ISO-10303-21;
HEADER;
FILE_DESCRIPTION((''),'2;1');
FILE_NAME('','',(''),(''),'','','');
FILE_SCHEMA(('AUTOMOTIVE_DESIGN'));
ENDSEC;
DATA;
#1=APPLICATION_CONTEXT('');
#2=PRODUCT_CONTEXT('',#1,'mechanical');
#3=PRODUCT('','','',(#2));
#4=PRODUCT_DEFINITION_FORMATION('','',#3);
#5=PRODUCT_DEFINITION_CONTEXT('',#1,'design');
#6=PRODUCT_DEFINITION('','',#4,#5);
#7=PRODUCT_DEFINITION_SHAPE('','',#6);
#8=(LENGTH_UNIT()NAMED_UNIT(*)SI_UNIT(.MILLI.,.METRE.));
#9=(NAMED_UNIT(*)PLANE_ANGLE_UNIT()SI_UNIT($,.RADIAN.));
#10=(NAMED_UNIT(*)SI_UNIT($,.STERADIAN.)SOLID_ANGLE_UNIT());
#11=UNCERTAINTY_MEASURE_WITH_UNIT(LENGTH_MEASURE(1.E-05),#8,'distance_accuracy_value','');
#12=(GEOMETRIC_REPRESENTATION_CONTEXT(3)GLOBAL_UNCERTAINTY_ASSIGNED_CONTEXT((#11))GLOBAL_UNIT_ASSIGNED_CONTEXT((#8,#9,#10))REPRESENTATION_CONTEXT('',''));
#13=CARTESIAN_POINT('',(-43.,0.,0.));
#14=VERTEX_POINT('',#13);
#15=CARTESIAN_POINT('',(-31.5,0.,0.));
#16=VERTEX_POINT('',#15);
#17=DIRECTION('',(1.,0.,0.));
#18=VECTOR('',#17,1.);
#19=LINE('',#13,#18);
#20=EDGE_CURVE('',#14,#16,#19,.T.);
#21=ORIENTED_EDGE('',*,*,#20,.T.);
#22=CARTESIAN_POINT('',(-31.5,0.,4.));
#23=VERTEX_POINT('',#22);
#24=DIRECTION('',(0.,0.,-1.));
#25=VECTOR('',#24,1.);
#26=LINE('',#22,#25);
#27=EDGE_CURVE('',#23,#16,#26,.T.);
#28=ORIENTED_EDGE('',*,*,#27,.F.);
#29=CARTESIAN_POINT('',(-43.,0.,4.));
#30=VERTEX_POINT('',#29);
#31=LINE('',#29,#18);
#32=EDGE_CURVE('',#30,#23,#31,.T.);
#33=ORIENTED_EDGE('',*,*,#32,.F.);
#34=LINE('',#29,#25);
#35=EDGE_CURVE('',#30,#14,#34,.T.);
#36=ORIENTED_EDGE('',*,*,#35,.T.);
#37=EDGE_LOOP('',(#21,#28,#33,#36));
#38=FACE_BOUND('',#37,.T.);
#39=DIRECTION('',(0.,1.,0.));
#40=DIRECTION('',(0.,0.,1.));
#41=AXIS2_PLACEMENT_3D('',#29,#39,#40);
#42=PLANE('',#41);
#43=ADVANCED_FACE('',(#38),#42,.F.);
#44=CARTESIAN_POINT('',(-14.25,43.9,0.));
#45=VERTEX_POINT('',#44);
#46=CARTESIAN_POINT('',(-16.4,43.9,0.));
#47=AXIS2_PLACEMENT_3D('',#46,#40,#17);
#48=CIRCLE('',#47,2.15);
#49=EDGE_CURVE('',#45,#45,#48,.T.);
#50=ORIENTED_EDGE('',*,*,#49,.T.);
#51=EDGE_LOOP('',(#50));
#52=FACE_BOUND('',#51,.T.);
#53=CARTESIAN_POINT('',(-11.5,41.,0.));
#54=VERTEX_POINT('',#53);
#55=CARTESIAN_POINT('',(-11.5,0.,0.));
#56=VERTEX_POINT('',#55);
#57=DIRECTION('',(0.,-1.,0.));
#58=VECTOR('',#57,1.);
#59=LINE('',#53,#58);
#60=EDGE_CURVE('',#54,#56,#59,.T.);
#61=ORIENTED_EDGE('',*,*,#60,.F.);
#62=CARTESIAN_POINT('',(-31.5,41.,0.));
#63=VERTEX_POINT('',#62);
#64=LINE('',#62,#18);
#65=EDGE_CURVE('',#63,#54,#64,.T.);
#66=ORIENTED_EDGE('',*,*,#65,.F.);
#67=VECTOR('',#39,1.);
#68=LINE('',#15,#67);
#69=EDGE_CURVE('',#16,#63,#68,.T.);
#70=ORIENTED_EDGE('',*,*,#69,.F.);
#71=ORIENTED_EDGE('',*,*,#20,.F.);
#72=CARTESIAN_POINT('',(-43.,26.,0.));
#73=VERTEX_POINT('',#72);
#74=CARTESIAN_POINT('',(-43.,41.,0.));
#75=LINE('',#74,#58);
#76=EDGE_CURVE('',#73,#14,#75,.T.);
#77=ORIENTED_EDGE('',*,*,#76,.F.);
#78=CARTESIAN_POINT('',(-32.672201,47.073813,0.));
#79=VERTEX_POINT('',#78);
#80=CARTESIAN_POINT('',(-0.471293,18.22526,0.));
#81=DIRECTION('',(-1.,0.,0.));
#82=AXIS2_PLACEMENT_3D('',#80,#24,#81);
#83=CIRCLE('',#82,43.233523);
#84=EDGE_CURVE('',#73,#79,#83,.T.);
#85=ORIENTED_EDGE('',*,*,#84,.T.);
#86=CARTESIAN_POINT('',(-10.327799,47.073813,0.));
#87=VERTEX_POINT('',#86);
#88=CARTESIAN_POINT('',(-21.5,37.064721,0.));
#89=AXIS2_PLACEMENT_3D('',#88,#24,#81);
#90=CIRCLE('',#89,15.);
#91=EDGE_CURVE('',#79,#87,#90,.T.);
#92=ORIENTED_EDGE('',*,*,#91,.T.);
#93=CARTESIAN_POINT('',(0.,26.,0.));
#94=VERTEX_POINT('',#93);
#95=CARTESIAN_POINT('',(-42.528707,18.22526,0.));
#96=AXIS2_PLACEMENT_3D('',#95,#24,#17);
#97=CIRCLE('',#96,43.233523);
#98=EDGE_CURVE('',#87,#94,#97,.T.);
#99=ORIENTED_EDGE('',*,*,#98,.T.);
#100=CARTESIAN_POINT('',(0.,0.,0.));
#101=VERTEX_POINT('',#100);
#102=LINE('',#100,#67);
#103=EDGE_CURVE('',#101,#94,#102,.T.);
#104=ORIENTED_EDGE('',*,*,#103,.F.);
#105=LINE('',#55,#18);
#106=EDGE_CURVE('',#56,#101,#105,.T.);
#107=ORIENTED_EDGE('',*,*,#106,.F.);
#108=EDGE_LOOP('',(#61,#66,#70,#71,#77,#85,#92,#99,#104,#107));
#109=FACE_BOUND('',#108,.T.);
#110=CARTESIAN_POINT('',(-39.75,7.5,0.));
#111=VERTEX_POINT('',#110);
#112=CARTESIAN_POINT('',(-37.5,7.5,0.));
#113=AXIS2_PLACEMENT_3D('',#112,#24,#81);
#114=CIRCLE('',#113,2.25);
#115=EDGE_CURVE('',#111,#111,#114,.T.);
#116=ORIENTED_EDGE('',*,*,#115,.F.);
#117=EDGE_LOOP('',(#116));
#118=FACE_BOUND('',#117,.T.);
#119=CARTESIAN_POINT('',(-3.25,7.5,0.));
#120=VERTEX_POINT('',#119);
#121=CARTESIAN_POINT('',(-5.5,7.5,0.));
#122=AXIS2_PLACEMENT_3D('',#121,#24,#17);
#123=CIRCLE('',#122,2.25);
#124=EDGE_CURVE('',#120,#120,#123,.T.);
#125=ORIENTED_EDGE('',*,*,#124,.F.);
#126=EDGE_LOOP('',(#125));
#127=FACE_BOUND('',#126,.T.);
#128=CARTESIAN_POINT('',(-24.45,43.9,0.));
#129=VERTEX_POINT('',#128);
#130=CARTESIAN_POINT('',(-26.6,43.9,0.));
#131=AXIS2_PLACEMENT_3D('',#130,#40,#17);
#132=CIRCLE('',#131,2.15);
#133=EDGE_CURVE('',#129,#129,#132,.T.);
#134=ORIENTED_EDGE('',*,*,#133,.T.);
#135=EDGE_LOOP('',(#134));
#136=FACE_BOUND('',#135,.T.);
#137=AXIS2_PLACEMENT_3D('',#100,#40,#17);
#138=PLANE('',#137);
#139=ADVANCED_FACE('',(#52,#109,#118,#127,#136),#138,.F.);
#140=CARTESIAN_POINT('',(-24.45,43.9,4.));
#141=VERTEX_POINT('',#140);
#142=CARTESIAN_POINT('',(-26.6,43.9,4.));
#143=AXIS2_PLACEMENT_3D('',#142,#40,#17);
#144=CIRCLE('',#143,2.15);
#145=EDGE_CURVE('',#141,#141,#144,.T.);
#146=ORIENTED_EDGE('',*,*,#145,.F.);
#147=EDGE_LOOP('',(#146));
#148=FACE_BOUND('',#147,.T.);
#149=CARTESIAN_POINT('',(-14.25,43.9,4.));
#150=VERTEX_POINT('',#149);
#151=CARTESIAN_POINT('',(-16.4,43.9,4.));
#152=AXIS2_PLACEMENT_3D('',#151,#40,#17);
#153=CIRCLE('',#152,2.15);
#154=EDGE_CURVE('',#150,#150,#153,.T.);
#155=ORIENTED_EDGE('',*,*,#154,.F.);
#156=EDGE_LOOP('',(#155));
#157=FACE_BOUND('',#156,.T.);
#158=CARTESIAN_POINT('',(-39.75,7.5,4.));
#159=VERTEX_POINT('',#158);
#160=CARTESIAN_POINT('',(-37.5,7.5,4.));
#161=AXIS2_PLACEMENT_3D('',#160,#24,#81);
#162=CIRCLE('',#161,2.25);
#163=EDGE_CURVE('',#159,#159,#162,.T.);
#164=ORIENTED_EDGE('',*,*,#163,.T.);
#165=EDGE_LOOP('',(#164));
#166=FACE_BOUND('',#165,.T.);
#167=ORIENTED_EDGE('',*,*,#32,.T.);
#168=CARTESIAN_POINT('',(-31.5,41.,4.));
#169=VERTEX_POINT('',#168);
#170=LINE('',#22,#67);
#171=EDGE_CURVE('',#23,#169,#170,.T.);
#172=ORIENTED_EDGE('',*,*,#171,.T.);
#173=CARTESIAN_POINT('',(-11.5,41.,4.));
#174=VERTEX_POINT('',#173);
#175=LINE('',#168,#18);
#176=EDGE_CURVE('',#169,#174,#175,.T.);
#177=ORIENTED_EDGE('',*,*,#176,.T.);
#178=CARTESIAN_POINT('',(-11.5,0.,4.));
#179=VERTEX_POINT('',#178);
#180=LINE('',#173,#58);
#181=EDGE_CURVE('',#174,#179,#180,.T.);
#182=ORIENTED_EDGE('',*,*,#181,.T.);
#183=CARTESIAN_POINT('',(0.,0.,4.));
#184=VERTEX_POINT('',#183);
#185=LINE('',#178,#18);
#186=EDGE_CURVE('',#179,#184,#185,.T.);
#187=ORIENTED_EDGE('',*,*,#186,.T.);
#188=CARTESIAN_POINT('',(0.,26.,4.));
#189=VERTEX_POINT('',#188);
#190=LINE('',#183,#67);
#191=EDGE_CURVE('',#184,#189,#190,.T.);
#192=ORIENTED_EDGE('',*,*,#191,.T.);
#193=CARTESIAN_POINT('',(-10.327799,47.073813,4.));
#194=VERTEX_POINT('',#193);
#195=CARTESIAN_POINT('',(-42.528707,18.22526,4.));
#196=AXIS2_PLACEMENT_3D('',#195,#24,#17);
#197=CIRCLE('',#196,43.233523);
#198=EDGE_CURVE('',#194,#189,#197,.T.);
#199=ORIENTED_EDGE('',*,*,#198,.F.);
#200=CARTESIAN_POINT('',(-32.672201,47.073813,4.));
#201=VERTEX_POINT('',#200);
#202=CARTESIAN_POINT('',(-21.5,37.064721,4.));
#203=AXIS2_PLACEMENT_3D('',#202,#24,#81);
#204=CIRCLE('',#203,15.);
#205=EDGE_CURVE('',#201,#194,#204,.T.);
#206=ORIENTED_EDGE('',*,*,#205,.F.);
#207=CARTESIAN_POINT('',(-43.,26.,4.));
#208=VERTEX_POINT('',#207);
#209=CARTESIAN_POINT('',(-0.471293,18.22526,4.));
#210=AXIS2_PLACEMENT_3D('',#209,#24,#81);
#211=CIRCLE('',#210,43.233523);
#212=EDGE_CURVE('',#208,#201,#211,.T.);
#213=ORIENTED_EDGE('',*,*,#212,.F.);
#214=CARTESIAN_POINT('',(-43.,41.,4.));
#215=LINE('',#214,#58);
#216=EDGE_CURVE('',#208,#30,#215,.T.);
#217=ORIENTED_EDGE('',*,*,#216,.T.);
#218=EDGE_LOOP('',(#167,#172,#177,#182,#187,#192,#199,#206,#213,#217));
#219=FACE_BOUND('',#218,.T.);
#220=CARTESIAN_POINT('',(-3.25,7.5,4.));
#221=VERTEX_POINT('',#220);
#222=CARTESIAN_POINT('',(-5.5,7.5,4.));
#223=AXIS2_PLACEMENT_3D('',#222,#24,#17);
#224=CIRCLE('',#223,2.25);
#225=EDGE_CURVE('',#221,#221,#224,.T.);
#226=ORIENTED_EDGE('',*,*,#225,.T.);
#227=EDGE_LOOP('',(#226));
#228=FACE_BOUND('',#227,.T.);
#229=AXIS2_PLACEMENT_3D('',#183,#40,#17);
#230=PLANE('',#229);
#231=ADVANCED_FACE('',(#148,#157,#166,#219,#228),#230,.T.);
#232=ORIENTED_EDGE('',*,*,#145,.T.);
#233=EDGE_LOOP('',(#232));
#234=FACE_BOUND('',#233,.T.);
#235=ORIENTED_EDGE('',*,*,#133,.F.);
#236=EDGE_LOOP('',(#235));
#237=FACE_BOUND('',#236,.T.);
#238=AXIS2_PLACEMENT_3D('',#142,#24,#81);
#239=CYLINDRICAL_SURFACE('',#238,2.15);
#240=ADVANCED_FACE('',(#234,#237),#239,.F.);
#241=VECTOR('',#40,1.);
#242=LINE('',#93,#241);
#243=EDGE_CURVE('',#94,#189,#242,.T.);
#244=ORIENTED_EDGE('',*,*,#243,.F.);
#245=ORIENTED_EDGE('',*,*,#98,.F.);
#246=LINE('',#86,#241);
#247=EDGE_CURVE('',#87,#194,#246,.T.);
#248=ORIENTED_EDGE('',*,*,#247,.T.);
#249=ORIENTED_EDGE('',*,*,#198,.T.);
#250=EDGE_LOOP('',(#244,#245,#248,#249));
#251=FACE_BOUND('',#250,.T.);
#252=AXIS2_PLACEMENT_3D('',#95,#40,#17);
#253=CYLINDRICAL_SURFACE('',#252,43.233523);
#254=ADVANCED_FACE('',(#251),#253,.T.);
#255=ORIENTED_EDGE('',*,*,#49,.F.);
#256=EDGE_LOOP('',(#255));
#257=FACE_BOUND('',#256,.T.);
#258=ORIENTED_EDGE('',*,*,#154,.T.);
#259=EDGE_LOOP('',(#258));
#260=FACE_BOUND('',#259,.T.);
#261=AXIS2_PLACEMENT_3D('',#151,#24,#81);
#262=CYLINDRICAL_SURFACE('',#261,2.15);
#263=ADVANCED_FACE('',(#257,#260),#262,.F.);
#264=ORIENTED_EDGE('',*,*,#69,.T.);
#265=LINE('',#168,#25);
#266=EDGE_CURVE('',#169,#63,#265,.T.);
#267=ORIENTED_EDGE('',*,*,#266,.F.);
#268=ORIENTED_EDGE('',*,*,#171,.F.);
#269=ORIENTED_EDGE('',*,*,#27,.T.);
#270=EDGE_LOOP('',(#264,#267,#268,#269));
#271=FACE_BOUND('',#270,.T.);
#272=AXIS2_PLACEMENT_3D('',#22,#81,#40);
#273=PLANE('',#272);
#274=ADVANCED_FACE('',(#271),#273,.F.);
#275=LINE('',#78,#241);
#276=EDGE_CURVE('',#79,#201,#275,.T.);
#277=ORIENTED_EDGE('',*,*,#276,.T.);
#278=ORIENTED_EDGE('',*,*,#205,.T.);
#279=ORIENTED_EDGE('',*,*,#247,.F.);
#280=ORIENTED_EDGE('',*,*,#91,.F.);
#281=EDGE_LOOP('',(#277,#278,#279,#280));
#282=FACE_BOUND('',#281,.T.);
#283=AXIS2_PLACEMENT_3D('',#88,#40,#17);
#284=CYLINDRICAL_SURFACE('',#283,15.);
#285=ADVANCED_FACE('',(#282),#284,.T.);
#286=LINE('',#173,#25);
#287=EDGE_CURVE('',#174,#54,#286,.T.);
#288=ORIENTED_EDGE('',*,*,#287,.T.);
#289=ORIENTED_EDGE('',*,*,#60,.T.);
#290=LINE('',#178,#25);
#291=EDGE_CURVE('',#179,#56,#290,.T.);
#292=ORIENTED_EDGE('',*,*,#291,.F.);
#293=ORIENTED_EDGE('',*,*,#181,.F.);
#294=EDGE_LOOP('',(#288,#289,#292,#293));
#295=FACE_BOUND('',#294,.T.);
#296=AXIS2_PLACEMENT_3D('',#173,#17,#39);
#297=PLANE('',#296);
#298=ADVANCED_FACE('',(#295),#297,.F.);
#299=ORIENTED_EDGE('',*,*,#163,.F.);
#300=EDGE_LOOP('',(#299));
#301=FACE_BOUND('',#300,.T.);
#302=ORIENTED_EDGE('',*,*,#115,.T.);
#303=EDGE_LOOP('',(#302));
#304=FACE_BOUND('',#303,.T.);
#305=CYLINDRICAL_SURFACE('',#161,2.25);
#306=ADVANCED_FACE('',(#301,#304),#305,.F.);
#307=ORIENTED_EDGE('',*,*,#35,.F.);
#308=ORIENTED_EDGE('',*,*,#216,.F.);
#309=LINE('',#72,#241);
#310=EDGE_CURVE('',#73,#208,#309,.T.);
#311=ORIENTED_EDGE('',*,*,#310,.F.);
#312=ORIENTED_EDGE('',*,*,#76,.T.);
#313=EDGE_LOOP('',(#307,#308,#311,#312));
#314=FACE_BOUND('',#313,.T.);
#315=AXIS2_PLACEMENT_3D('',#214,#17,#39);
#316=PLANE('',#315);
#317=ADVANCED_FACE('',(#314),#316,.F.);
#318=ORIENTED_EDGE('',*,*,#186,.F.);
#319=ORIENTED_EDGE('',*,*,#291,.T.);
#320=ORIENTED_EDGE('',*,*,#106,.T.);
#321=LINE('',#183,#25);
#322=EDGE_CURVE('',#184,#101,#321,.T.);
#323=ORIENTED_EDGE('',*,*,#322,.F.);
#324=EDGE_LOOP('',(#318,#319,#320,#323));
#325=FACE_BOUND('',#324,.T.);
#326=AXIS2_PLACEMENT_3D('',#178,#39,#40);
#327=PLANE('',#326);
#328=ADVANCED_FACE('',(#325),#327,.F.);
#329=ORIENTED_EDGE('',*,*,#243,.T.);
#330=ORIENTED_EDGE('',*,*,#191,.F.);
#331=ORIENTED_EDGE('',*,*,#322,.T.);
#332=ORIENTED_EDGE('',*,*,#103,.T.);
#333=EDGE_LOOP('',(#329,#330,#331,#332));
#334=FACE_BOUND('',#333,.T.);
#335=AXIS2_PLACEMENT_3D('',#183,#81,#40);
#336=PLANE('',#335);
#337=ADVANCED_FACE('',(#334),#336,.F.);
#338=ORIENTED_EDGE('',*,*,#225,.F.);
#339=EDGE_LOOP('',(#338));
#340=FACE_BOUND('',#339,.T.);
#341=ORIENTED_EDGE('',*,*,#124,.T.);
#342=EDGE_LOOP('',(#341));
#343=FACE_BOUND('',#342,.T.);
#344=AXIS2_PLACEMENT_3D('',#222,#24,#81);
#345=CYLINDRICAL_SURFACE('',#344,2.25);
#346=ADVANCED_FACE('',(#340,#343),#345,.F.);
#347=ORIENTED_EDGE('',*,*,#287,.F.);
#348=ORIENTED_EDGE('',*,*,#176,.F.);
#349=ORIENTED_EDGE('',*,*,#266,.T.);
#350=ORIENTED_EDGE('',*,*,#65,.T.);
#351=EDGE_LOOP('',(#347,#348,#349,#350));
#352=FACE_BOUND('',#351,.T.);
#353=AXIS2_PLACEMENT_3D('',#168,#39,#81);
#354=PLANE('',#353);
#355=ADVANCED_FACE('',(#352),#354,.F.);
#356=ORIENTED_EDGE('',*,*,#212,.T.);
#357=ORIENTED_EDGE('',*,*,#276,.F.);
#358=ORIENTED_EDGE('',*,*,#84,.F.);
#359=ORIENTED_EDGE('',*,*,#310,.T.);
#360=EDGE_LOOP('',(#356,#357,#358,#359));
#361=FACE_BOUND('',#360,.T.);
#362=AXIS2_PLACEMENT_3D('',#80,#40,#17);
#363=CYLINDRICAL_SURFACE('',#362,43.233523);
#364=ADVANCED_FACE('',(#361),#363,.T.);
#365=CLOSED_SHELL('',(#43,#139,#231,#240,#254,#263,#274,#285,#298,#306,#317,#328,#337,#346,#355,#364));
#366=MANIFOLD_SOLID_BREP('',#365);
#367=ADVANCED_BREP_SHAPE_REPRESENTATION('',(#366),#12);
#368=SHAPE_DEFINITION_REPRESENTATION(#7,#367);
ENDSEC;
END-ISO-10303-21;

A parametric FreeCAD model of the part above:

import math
import FreeCAD as App
import Part
import Sketcher
Q = App.Units.Quantity


def add_polygon(sketch, points):
    """Adds a closed chain of lines whose ends are joined by coincident constraints."""
    first, n = sketch.GeometryCount, len(points)
    for a, b in zip(points, points[1:] + points[:1]):
        sketch.addGeometry(Part.LineSegment(App.Vector(*a, 0), App.Vector(*b, 0)), False)
    for i in range(n):
        sketch.addConstraint(Sketcher.Constraint("Coincident", first + i, 2, first + (i + 1) % n, 1))

doc = App.newDocument("Part")
body = doc.addObject("PartDesign::Body", "Body")

# Sketch on XY plane
sketch1 = body.newObject("Sketcher::SketchObject", "Sketch")
sketch1.AttachmentSupport = (doc.getObject("XY_Plane"), [""])
sketch1.MapMode = "FlatFace"
add_polygon(sketch1, [(0, 0), (0, 41), (-15, 56), (-28, 56), (-43, 41), (-43, 0), (-31.5, 0), (-31.5, 41), (-11.5, 41), (-11.5, 0)])  # lines 0-9
sketch1.addGeometry(Part.Circle(App.Vector(-26.6, 43.9, 0), App.Vector(0, 0, 1), 2.1), False)  # 10
sketch1.addGeometry(Part.Circle(App.Vector(-16.4, 43.9, 0), App.Vector(0, 0, 1), 2.1), False)  # 11
sketch1.addConstraint(Sketcher.Constraint("Vertical", 0))
sketch1.addConstraint(Sketcher.Constraint("Horizontal", 2))
sketch1.addConstraint(Sketcher.Constraint("Vertical", 4))
sketch1.addConstraint(Sketcher.Constraint("Horizontal", 5))
sketch1.addConstraint(Sketcher.Constraint("Vertical", 6))
sketch1.addConstraint(Sketcher.Constraint("Horizontal", 7))
sketch1.addConstraint(Sketcher.Constraint("Vertical", 8))
sketch1.addConstraint(Sketcher.Constraint("Horizontal", 9))
sketch1.addConstraint(Sketcher.Constraint("Coincident", 9, 2, -1, 1))
sketch1.addConstraint(Sketcher.Constraint("Equal", 10, 11))
sketch1.addConstraint(Sketcher.Constraint("PointOnObject", 4, 2, -1))
sketch1.addConstraint(Sketcher.Constraint("Perpendicular", 1, 3))
sketch1.addConstraint(Sketcher.Constraint("Horizontal", 10, 3, 11, 3))
sketch1.addConstraint(Sketcher.Constraint("Horizontal", 0, 2, 3, 2))
sketch1.addConstraint(Sketcher.Constraint("Horizontal", 3, 2, 6, 2))
sketch1.addConstraint(Sketcher.Constraint("Equal", 5, 9))
sketch1.addConstraint(Sketcher.Constraint("Equal", 1, 3))
sketch1.addConstraint(Sketcher.Constraint("Diameter", 10, Q("4.3 mm")))
sketch1.addConstraint(Sketcher.Constraint("DistanceX", 2, 2, 2, 1, Q("13 mm")))
sketch1.addConstraint(Sketcher.Constraint("DistanceX", 7, 1, 7, 2, Q("20 mm")))
sketch1.addConstraint(Sketcher.Constraint("DistanceY", 0, 1, 0, 2, Q("41 mm")))
sketch1.addConstraint(Sketcher.Constraint("DistanceX", 5, 1, 5, 2, Q("11.5 mm")))
sketch1.addConstraint(Sketcher.Constraint("DistanceX", 10, 3, -1, 1, Q("26.6 mm")))
sketch1.addConstraint(Sketcher.Constraint("DistanceY", -1, 1, 10, 3, Q("43.9 mm")))
sketch1.addConstraint(Sketcher.Constraint("DistanceX", 11, 3, -1, 1, Q("16.4 mm")))
pad1 = body.newObject("PartDesign::Pad", "Pad")
pad1.Profile = sketch1
pad1.Length = 4

# Sketch on XY plane
sketch2 = body.newObject("Sketcher::SketchObject", "Sketch001")
sketch2.AttachmentSupport = (doc.getObject("XY_Plane"), [""])
sketch2.MapMode = "FlatFace"
sketch2.AttachmentOffset = App.Placement(App.Vector(0, 0, 4), App.Rotation())
sketch2.addGeometry(Part.LineSegment(App.Vector(0, 26, 0), App.Vector(0, 41, 0)), False)
sketch2.addGeometry(Part.LineSegment(App.Vector(0, 41, 0), App.Vector(-15, 56, 0)), False)
sketch2.addGeometry(Part.LineSegment(App.Vector(-15, 56, 0), App.Vector(-28, 56, 0)), False)
sketch2.addGeometry(Part.LineSegment(App.Vector(-28, 56, 0), App.Vector(-43, 41, 0)), False)
sketch2.addGeometry(Part.LineSegment(App.Vector(-43, 41, 0), App.Vector(-43, 26, 0)), False)
sketch2.addGeometry(Part.ArcOfCircle(Part.Circle(App.Vector(0, 18, 0), App.Vector(0, 0, 1), 43), math.radians(138), math.radians(170)), False)
sketch2.addGeometry(Part.ArcOfCircle(Part.Circle(App.Vector(-22, 37, 0), App.Vector(0, 0, 1), 15), math.radians(42), math.radians(138)), False)
sketch2.addGeometry(Part.ArcOfCircle(Part.Circle(App.Vector(-43, 18, 0), App.Vector(0, 0, 1), 43), math.radians(10), math.radians(42)), False)
sketch2.addConstraint(Sketcher.Constraint("Coincident", 0, 2, 1, 1))
sketch2.addConstraint(Sketcher.Constraint("Coincident", 1, 2, 2, 1))
sketch2.addConstraint(Sketcher.Constraint("Coincident", 2, 2, 3, 1))
sketch2.addConstraint(Sketcher.Constraint("Coincident", 3, 2, 4, 1))
sketch2.addConstraint(Sketcher.Constraint("Coincident", 4, 2, 5, 2))
sketch2.addConstraint(Sketcher.Constraint("Tangent", 5, 1, 6, 2))
sketch2.addConstraint(Sketcher.Constraint("Tangent", 6, 1, 7, 2))
sketch2.addConstraint(Sketcher.Constraint("Coincident", 7, 1, 0, 1))
sketch2.addConstraint(Sketcher.Constraint("Vertical", 0))
sketch2.addConstraint(Sketcher.Constraint("Horizontal", 2))
sketch2.addConstraint(Sketcher.Constraint("Vertical", 4))
sketch2.addConstraint(Sketcher.Constraint("Equal", 5, 7))
sketch2.addConstraint(Sketcher.Constraint("PointOnObject", 0, 2, -2))
sketch2.addConstraint(Sketcher.Constraint("Perpendicular", 1, 3))
sketch2.addConstraint(Sketcher.Constraint("Horizontal", 5, 3, 7, 3))
sketch2.addConstraint(Sketcher.Constraint("Horizontal", 0, 2, 3, 2))
sketch2.addConstraint(Sketcher.Constraint("Horizontal", 4, 2, 7, 1))
sketch2.addConstraint(Sketcher.Constraint("Equal", 1, 3))
sketch2.addConstraint(Sketcher.Constraint("Radius", 6, Q("15 mm")))
sketch2.addConstraint(Sketcher.Constraint("DistanceX", 2, 2, 2, 1, Q("13 mm")))
sketch2.addConstraint(Sketcher.Constraint("DistanceY", 0, 1, 0, 2, Q("15 mm")))
sketch2.addConstraint(Sketcher.Constraint("DistanceY", -1, 1, 0, 2, Q("41 mm")))
sketch2.addConstraint(Sketcher.Constraint("DistanceX", 1, 2, -1, 1, Q("15 mm")))
sketch2.addConstraint(Sketcher.Constraint("Radius", 5, Q("43.233523 mm")))
sketch2.addConstraint(Sketcher.Constraint("DistanceX", 5, 1, -1, 1, Q("32.672201 mm")))
pocket1 = body.newObject("PartDesign::Pocket", "Pocket")
pocket1.Profile = sketch2
pocket1.Type = "ThroughAll"

# Sketch on XY plane
sketch3 = body.newObject("Sketcher::SketchObject", "Sketch002")
sketch3.AttachmentSupport = (doc.getObject("XY_Plane"), [""])
sketch3.MapMode = "FlatFace"
sketch3.addGeometry(Part.ArcOfCircle(Part.Circle(App.Vector(-37.5, 7.5, 0), App.Vector(0, 0, 1), 2.2), math.radians(-159), math.radians(-21)), False)
sketch3.addGeometry(Part.ArcOfCircle(Part.Circle(App.Vector(-37.5, 7.5, 0), App.Vector(0, 0, 1), 2.2), math.radians(-21), math.radians(201)), False)
sketch3.addGeometry(Part.ArcOfCircle(Part.Circle(App.Vector(-5.5, 7.5, 0), App.Vector(0, 0, 1), 2.2), math.radians(-159), math.radians(-21)), False)
sketch3.addGeometry(Part.ArcOfCircle(Part.Circle(App.Vector(-5.5, 7.5, 0), App.Vector(0, 0, 1), 2.2), math.radians(-21), math.radians(201)), False)
sketch3.addConstraint(Sketcher.Constraint("Tangent", 0, 1, 1, 2))
sketch3.addConstraint(Sketcher.Constraint("Coincident", 1, 1, 0, 2))
sketch3.addConstraint(Sketcher.Constraint("Tangent", 2, 1, 3, 2))
sketch3.addConstraint(Sketcher.Constraint("Coincident", 3, 1, 2, 2))
sketch3.addConstraint(Sketcher.Constraint("Equal", 1, 2))
sketch3.addConstraint(Sketcher.Constraint("Horizontal", 1, 3, 2, 3))
sketch3.addConstraint(Sketcher.Constraint("Horizontal", 0, 1, 1, 1))
sketch3.addConstraint(Sketcher.Constraint("Horizontal", 1, 1, 2, 1))
sketch3.addConstraint(Sketcher.Constraint("Horizontal", 2, 1, 3, 1))
sketch3.addConstraint(Sketcher.Constraint("Radius", 0, Q("2.25 mm")))
sketch3.addConstraint(Sketcher.Constraint("DistanceX", 0, 3, 2, 3, Q("32 mm")))
sketch3.addConstraint(Sketcher.Constraint("DistanceX", 0, 3, -1, 1, Q("37.5 mm")))
sketch3.addConstraint(Sketcher.Constraint("DistanceY", -1, 1, 0, 3, Q("7.5 mm")))
sketch3.addConstraint(Sketcher.Constraint("DistanceY", -1, 1, 0, 1, Q("6.682612 mm")))
pocket2 = body.newObject("PartDesign::Pocket", "Pocket001")
pocket2.Profile = sketch3
pocket2.Type = "ThroughAll"
pocket2.Reversed = True

doc.recompute()
